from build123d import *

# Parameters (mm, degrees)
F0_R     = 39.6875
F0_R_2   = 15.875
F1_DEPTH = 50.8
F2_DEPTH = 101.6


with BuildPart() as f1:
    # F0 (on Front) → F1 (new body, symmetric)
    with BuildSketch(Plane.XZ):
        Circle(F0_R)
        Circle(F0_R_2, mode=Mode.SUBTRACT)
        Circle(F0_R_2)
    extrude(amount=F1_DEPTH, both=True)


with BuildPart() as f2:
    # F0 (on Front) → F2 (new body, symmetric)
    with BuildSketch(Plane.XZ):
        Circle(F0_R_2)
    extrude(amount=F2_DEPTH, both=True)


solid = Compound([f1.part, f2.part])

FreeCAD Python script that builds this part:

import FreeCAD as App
import Part
import Sketcher
Q = App.Units.Quantity

doc = App.newDocument("Part")
params = doc.addObject("Spreadsheet::Sheet", "Params")
for row, (alias, value) in enumerate([
    ("sketch1_diameter", "3.125 in"),
    ("pad1_length", "4 in"),
    ("sketch2_diameter", "1.25 in"),
    ("pad2_length", "8 in"),
], start=1):
    params.set(f"A{row}", alias)
    params.set(f"B{row}", "=" + value)
    params.setAlias(f"B{row}", alias)

body = doc.addObject("PartDesign::Body", "Body")

# Sketch on XZ plane
sketch1 = doc.addObject("Sketcher::SketchObject", "Sketch")
body.addObject(sketch1)
sketch1.AttachmentSupport = (doc.XZ_Plane, [""])
sketch1.MapMode = "FlatFace"
sketch1.addGeometry(Part.Circle(App.Vector(0, 0, 0), App.Vector(0, 0, 1), 40), False)
sketch1.addConstraint([
    Sketcher.Constraint("Coincident", 0, 3, -1, 1),
    Sketcher.Constraint("Diameter", 0, Q("3.125 in")),
])
sketch1.setExpression("Constraints[1]", "Params.sketch1_diameter")
pad1 = doc.addObject("PartDesign::Pad", "Pad")
body.addObject(pad1)
pad1.Profile = sketch1
pad1.setExpression("Length", "Params.pad1_length")
pad1.Midplane = True
body2 = doc.addObject("PartDesign::Body", "Body001")

# Sketch on XZ plane
sketch2 = doc.addObject("Sketcher::SketchObject", "Sketch001")
body2.addObject(sketch2)
sketch2.AttachmentSupport = (doc.getObject("XZ_Plane001"), [""])
sketch2.MapMode = "FlatFace"
sketch2.addGeometry(Part.Circle(App.Vector(0, 0, 0), App.Vector(0, 0, 1), 16), False)
sketch2.addConstraint([
    Sketcher.Constraint("Coincident", 0, 3, -1, 1),
    Sketcher.Constraint("Diameter", 0, Q("1.25 in")),
])
sketch2.setExpression("Constraints[1]", "Params.sketch2_diameter")
pad2 = doc.addObject("PartDesign::Pad", "Pad001")
body2.addObject(pad2)
pad2.Profile = sketch2
pad2.setExpression("Length", "Params.pad2_length")
pad2.Midplane = True

doc.recompute()
